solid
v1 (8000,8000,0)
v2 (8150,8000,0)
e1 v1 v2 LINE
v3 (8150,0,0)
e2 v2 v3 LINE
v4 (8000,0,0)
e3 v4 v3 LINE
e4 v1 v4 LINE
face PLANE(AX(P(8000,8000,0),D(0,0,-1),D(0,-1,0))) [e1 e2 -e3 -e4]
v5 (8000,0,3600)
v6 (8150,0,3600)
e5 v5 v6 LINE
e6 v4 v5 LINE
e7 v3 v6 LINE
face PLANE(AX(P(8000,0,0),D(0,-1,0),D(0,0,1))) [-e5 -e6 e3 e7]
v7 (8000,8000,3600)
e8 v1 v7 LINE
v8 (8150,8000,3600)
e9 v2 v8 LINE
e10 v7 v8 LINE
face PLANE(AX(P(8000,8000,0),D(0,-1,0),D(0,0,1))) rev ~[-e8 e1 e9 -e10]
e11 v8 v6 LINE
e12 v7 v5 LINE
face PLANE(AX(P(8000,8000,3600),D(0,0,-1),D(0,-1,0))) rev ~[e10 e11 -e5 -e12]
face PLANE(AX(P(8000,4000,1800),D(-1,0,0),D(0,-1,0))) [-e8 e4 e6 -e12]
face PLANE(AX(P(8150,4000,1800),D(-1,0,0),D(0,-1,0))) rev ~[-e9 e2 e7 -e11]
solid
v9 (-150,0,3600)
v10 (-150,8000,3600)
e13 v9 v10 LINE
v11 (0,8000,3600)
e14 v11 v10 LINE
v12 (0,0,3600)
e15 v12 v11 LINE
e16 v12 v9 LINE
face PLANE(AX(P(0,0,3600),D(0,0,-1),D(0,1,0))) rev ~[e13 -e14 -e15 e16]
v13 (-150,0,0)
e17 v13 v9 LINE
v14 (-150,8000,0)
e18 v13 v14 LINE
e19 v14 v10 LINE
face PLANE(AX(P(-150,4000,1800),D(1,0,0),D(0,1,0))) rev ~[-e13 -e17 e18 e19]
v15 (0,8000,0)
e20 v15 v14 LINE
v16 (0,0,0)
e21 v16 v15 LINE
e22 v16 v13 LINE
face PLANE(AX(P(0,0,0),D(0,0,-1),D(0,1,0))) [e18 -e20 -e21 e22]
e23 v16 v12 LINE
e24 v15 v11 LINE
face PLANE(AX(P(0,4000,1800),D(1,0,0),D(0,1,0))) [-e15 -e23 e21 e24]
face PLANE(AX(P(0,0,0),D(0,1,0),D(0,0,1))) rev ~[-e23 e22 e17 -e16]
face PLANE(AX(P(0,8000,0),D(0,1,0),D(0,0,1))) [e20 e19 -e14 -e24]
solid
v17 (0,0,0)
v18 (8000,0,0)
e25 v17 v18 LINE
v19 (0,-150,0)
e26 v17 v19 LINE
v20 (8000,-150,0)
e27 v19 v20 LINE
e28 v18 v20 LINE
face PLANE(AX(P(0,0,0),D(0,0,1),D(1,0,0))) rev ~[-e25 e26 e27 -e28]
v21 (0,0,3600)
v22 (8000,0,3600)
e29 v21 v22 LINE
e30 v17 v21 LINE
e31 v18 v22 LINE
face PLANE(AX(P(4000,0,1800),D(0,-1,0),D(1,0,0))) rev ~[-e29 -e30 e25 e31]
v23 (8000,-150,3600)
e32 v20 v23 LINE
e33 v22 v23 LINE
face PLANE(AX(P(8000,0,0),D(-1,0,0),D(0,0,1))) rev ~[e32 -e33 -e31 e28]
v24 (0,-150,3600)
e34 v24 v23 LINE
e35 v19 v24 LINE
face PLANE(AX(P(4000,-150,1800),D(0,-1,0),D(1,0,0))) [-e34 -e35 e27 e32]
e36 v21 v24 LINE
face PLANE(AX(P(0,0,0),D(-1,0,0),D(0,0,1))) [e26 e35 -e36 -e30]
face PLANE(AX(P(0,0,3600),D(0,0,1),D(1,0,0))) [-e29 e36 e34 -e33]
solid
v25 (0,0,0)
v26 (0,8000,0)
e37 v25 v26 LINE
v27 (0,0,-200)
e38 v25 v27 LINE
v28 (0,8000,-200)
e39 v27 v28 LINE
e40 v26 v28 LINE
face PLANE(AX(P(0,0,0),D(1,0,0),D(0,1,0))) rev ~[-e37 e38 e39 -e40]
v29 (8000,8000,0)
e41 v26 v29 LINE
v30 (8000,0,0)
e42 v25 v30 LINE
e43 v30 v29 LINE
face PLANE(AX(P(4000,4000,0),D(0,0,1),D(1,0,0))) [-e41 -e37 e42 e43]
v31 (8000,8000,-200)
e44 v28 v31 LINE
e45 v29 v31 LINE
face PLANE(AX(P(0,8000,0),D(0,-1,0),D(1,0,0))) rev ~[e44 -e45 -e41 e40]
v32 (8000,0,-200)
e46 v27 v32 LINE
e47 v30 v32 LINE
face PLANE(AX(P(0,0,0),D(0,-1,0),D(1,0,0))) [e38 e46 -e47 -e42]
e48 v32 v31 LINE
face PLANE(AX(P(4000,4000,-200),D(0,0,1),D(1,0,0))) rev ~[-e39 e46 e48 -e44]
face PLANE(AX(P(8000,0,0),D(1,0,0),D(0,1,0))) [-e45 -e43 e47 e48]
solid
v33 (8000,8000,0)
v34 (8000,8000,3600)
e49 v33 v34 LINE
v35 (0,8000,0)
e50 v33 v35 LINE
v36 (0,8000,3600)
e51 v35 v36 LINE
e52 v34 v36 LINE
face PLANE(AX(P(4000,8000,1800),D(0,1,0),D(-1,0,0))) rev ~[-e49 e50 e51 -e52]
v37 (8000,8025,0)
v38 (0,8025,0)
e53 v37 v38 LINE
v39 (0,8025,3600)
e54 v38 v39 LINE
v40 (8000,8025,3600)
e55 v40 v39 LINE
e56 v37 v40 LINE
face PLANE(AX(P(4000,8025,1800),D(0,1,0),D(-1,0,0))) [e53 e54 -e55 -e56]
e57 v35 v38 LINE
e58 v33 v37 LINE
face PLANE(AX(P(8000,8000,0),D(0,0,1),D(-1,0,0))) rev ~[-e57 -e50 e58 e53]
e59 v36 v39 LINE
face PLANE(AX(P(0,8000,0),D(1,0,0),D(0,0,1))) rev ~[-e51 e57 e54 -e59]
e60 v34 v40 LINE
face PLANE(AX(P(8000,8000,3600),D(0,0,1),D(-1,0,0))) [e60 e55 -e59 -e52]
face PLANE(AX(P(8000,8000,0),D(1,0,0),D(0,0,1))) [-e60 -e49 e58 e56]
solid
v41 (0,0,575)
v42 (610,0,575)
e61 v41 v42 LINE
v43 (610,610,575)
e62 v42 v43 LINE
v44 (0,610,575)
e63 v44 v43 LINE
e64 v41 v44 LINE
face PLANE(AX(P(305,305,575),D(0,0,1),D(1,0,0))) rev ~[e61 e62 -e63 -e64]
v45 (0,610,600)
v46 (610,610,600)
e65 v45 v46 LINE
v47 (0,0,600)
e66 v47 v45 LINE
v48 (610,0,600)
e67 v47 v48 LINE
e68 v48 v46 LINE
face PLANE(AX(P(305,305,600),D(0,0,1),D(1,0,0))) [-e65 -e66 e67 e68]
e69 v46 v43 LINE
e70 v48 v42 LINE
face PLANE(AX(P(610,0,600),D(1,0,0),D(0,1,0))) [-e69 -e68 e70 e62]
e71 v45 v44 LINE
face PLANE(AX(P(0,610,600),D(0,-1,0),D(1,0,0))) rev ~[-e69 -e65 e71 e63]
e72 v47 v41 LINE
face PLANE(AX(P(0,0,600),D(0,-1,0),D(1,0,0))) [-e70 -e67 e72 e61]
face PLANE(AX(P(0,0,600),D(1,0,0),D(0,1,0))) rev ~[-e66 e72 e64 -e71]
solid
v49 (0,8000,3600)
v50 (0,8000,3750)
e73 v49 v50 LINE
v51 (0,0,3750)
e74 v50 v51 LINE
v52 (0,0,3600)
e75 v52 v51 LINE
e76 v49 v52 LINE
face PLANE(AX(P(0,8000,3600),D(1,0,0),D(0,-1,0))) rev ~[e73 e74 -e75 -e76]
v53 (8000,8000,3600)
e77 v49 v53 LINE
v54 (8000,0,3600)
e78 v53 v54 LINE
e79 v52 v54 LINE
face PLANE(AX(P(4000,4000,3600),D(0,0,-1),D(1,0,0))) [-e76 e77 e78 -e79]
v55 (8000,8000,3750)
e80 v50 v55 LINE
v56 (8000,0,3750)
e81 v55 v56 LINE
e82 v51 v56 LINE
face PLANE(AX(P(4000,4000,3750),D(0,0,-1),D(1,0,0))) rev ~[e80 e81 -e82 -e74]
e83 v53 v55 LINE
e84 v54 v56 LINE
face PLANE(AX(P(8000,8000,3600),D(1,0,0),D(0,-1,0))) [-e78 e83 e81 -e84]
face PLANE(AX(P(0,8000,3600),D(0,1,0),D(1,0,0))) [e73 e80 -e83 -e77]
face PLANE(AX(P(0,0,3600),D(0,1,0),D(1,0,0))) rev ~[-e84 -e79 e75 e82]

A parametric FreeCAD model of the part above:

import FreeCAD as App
import Part
import Sketcher


def add_polygon(sketch, points):
    """Adds a closed chain of lines whose ends are joined by coincident constraints."""
    first, n = sketch.GeometryCount, len(points)
    for a, b in zip(points, points[1:] + points[:1]):
        sketch.addGeometry(Part.LineSegment(App.Vector(*a, 0), App.Vector(*b, 0)), False)
    for i in range(n):
        sketch.addConstraint(Sketcher.Constraint("Coincident", first + i, 2, first + (i + 1) % n, 1))

doc = App.newDocument("Part")
params = doc.addObject("Spreadsheet::Sheet", "Params")
for row, (alias, value) in enumerate([
    ("sketch1_width", "8000 mm"),
    ("sketch1_height", "3600 mm"),
    ("pad1_length", "150 mm"),
    ("sketch2_width", "8000 mm"),
    ("sketch2_height", "3600 mm"),
    ("pad2_length", "150 mm"),
    ("sketch3_width", "8000 mm"),
    ("pad3_length", "200 mm"),
    ("sketch4_width", "8000 mm"),
    ("sketch4_height", "3600 mm"),
    ("pad4_length", "150 mm"),
    ("sketch5_width", "8000 mm"),
    ("sketch5_height", "3600 mm"),
    ("pad5_length", "25 mm"),
    ("sketch6_width", "8000 mm"),
    ("pad6_length", "150 mm"),
    ("sketch7_width", "610 mm"),
    ("pad7_length", "25 mm"),
], start=1):
    params.set(f"A{row}", alias)
    params.set(f"B{row}", "=" + value)
    params.setAlias(f"B{row}", alias)

body = doc.addObject("PartDesign::Body", "Body")

# Sketch on YZ plane
sketch1 = body.newObject("Sketcher::SketchObject", "Sketch")
sketch1.AttachmentSupport = (doc.getObject("YZ_Plane"), [""])
sketch1.MapMode = "FlatFace"
add_polygon(sketch1, [(0, 3600), (0, 0), (8000, 0), (8000, 3600)])  # lines 0-3
sketch1.addConstraint([
    Sketcher.Constraint("Vertical", 0),
    Sketcher.Constraint("Horizontal", 1),
    Sketcher.Constraint("Vertical", 2),
    Sketcher.Constraint("Horizontal", 3),
    Sketcher.Constraint("Coincident", 0, 2, -1, 1),
    Sketcher.Constraint("DistanceX", 1, 1, 1, 2, 8000.0),
    Sketcher.Constraint("DistanceY", 0, 2, 0, 1, 3600.0),
])
sketch1.setExpression("Constraints[9]", "Params.sketch1_width")
sketch1.setExpression("Constraints[10]", "Params.sketch1_height")
pad1 = body.newObject("PartDesign::Pad", "Pad")
pad1.Profile = sketch1
pad1.setExpression("Length", "Params.pad1_length")
pad1.Reversed = True
body2 = doc.addObject("PartDesign::Body", "Body001")

# Sketch on XZ plane
sketch2 = body2.newObject("Sketcher::SketchObject", "Sketch001")
sketch2.AttachmentSupport = (doc.getObject("XZ_Plane001"), [""])
sketch2.MapMode = "FlatFace"
add_polygon(sketch2, [(0, 3600), (0, 0), (8000, 0), (8000, 3600)])  # lines 0-3
sketch2.addConstraint([
    Sketcher.Constraint("Vertical", 0),
    Sketcher.Constraint("Horizontal", 1),
    Sketcher.Constraint("Vertical", 2),
    Sketcher.Constraint("Horizontal", 3),
    Sketcher.Constraint("Coincident", 0, 2, -1, 1),
    Sketcher.Constraint("DistanceX", 1, 1, 1, 2, 8000.0),
    Sketcher.Constraint("DistanceY", 0, 2, 0, 1, 3600.0),
])
sketch2.setExpression("Constraints[9]", "Params.sketch2_width")
sketch2.setExpression("Constraints[10]", "Params.sketch2_height")
pad2 = body2.newObject("PartDesign::Pad", "Pad001")
pad2.Profile = sketch2
pad2.setExpression("Length", "Params.pad2_length")
body3 = doc.addObject("PartDesign::Body", "Body002")

# Sketch on XY plane
sketch3 = body3.newObject("Sketcher::SketchObject", "Sketch002")
sketch3.AttachmentSupport = (doc.getObject("XY_Plane002"), [""])
sketch3.MapMode = "FlatFace"
add_polygon(sketch3, [(0, 8000), (0, 0), (8000, 0), (8000, 8000)])  # lines 0-3
sketch3.addConstraint([
    Sketcher.Constraint("Vertical", 0),
    Sketcher.Constraint("Horizontal", 1),
    Sketcher.Constraint("Vertical", 2),
    Sketcher.Constraint("Horizontal", 3),
    Sketcher.Constraint("Coincident", 0, 2, -1, 1),
    Sketcher.Constraint("Equal", 3, 0),
    Sketcher.Constraint("DistanceX", 1, 1, 1, 2, 8000.0),
])
sketch3.setExpression("Constraints[10]", "Params.sketch3_width")
pad3 = body3.newObject("PartDesign::Pad", "Pad002")
pad3.Profile = sketch3
pad3.setExpression("Length", "Params.pad3_length")
pad3.Reversed = True
body4 = doc.addObject("PartDesign::Body", "Body003")

# Sketch on YZ plane
sketch4 = body4.newObject("Sketcher::SketchObject", "Sketch003")
sketch4.AttachmentSupport = (doc.getObject("YZ_Plane003"), [""])
sketch4.MapMode = "FlatFace"
sketch4.AttachmentOffset = App.Placement(App.Vector(0, 0, 8000), App.Rotation())
add_polygon(sketch4, [(8000, 3600), (8000, 0), (0, 0), (0, 3600)])  # lines 0-3
sketch4.addConstraint([
    Sketcher.Constraint("Vertical", 0),
    Sketcher.Constraint("Horizontal", 1),
    Sketcher.Constraint("Vertical", 2),
    Sketcher.Constraint("Horizontal", 3),
    Sketcher.Constraint("Coincident", 1, 2, -1, 1),
    Sketcher.Constraint("DistanceX", 1, 2, 1, 1, 8000.0),
    Sketcher.Constraint("DistanceY", 0, 2, 0, 1, 3600.0),
])
sketch4.setExpression("Constraints[9]", "Params.sketch4_width")
sketch4.setExpression("Constraints[10]", "Params.sketch4_height")
pad4 = body4.newObject("PartDesign::Pad", "Pad003")
pad4.Profile = sketch4
pad4.setExpression("Length", "Params.pad4_length")
body5 = doc.addObject("PartDesign::Body", "Body004")

# Sketch on XZ plane
sketch5 = body5.newObject("Sketcher::SketchObject", "Sketch004")
sketch5.AttachmentSupport = (doc.getObject("XZ_Plane004"), [""])
sketch5.MapMode = "FlatFace"
sketch5.AttachmentOffset = App.Placement(App.Vector(0, 0, -8000), App.Rotation())
add_polygon(sketch5, [(8000, 3600), (8000, 0), (0, 0), (0, 3600)])  # lines 0-3
sketch5.addConstraint([
    Sketcher.Constraint("Vertical", 0),
    Sketcher.Constraint("Horizontal", 1),
    Sketcher.Constraint("Vertical", 2),
    Sketcher.Constraint("Horizontal", 3),
    Sketcher.Constraint("Coincident", 1, 2, -1, 1),
    Sketcher.Constraint("DistanceX", 1, 2, 1, 1, 8000.0),
    Sketcher.Constraint("DistanceY", 0, 2, 0, 1, 3600.0),
])
sketch5.setExpression("Constraints[9]", "Params.sketch5_width")
sketch5.setExpression("Constraints[10]", "Params.sketch5_height")
pad5 = body5.newObject("PartDesign::Pad", "Pad004")
pad5.Profile = sketch5
pad5.setExpression("Length", "Params.pad5_length")
pad5.Reversed = True
body6 = doc.addObject("PartDesign::Body", "Body005")

# Sketch on XY plane
sketch6 = body6.newObject("Sketcher::SketchObject", "Sketch005")
sketch6.AttachmentSupport = (doc.getObject("XY_Plane005"), [""])
sketch6.MapMode = "FlatFace"
sketch6.AttachmentOffset = App.Placement(App.Vector(0, 0, 3600), App.Rotation())
add_polygon(sketch6, [(0, 0), (0, 8000), (8000, 8000), (8000, 0)])  # lines 0-3
sketch6.addConstraint([
    Sketcher.Constraint("Vertical", 0),
    Sketcher.Constraint("Horizontal", 1),
    Sketcher.Constraint("Vertical", 2),
    Sketcher.Constraint("Horizontal", 3),
    Sketcher.Constraint("Coincident", 3, 2, -1, 1),
    Sketcher.Constraint("Equal", 3, 0),
    Sketcher.Constraint("DistanceX", 1, 1, 1, 2, 8000.0),
])
sketch6.setExpression("Constraints[10]", "Params.sketch6_width")
pad6 = body6.newObject("PartDesign::Pad", "Pad005")
pad6.Profile = sketch6
pad6.setExpression("Length", "Params.pad6_length")
body7 = doc.addObject("PartDesign::Body", "Body006")

# Sketch on XY plane
sketch7 = body7.newObject("Sketcher::SketchObject", "Sketch006")
sketch7.AttachmentSupport = (doc.getObject("XY_Plane006"), [""])
sketch7.MapMode = "FlatFace"
sketch7.AttachmentOffset = App.Placement(App.Vector(0, 0, 600), App.Rotation())
add_polygon(sketch7, [(0, 610), (0, 0), (610, 0), (610, 610)])  # lines 0-3
sketch7.addConstraint([
    Sketcher.Constraint("Vertical", 0),
    Sketcher.Constraint("Horizontal", 1),
    Sketcher.Constraint("Vertical", 2),
    Sketcher.Constraint("Horizontal", 3),
    Sketcher.Constraint("Coincident", 0, 2, -1, 1),
    Sketcher.Constraint("Equal", 3, 0),
    Sketcher.Constraint("DistanceX", 1, 1, 1, 2, 610.0),
])
sketch7.setExpression("Constraints[10]", "Params.sketch7_width")
pad7 = body7.newObject("PartDesign::Pad", "Pad006")
pad7.Profile = sketch7
pad7.setExpression("Length", "Params.pad7_length")
pad7.Reversed = True

doc.recompute()
